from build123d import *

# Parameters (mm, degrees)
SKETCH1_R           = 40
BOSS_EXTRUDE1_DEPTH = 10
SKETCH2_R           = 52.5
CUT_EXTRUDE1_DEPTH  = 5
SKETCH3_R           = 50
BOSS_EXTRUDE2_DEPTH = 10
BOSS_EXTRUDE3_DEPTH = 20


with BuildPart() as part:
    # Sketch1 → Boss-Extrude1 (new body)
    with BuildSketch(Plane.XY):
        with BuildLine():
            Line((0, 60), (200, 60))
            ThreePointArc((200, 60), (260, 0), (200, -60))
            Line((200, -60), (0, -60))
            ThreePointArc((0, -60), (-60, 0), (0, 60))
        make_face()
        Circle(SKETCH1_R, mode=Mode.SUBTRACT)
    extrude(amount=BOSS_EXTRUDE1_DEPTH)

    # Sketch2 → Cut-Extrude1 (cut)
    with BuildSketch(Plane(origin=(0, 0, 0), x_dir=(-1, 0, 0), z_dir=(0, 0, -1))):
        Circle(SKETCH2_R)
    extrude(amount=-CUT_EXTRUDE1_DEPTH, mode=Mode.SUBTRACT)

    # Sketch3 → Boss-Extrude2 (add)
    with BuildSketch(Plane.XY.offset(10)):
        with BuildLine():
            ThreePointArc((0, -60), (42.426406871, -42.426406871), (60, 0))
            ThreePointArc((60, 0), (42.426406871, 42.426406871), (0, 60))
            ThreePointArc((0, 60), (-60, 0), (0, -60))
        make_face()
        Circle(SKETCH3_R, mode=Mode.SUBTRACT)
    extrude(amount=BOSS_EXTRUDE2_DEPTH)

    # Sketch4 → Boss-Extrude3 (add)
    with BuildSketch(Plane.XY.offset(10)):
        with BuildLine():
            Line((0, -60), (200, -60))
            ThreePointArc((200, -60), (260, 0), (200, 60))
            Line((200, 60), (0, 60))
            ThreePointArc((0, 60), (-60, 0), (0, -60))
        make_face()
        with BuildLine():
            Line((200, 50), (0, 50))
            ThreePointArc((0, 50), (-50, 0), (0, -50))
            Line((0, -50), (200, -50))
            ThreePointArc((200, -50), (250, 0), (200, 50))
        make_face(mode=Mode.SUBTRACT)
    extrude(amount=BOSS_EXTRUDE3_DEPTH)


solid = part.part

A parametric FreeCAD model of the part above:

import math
import FreeCAD as App
import Part
import Sketcher
Q = App.Units.Quantity

doc = App.newDocument("Part")
body = doc.addObject("PartDesign::Body", "Body")

# Sketch on XY plane
sketch1 = doc.addObject("Sketcher::SketchObject", "Sketch")
body.addObject(sketch1)
sketch1.AttachmentSupport = (doc.XY_Plane, [""])
sketch1.MapMode = "FlatFace"
sketch1.addGeometry(Part.LineSegment(App.Vector(200, 60, 0), App.Vector(0, 60, 0)), False)
sketch1.addGeometry(Part.ArcOfCircle(Part.Circle(App.Vector(0, 0, 0), App.Vector(0, 0, 1), 60), math.radians(90), math.radians(270)), False)
sketch1.addGeometry(Part.LineSegment(App.Vector(0, -60, 0), App.Vector(200, -60, 0)), False)
sketch1.addGeometry(Part.ArcOfCircle(Part.Circle(App.Vector(200, 0, 0), App.Vector(0, 0, 1), 60), math.radians(-90), math.radians(90)), False)
sketch1.addGeometry(Part.Circle(App.Vector(0, 0, 0), App.Vector(0, 0, 1), 40), False)
sketch1.addConstraint(Sketcher.Constraint("Tangent", 0, 2, 1, 1))
sketch1.addConstraint(Sketcher.Constraint("Tangent", 1, 2, 2, 1))
sketch1.addConstraint(Sketcher.Constraint("Tangent", 2, 2, 3, 1))
sketch1.addConstraint(Sketcher.Constraint("Tangent", 3, 2, 0, 1))
sketch1.addConstraint(Sketcher.Constraint("Horizontal", 0))
sketch1.addConstraint(Sketcher.Constraint("Horizontal", 2))
sketch1.addConstraint(Sketcher.Constraint("Coincident", 1, 3, -1, 1))
sketch1.addConstraint(Sketcher.Constraint("Coincident", 4, 3, -1, 1))
sketch1.addConstraint(Sketcher.Constraint("Diameter", 4, Q("80 mm")))
sketch1.addConstraint(Sketcher.Constraint("Radius", 1, Q("60 mm")))
sketch1.addConstraint(Sketcher.Constraint("DistanceX", 0, 2, 0, 1, Q("200 mm")))
pad1 = doc.addObject("PartDesign::Pad", "Pad")
body.addObject(pad1)
pad1.Profile = sketch1
pad1.Length = 10

# Sketch on XY plane
sketch2 = doc.addObject("Sketcher::SketchObject", "Sketch001")
body.addObject(sketch2)
sketch2.AttachmentSupport = (doc.XY_Plane, [""])
sketch2.MapMode = "FlatFace"
sketch2.addGeometry(Part.Circle(App.Vector(0, 0, 0), App.Vector(0, 0, 1), 52), False)
sketch2.addConstraint(Sketcher.Constraint("Coincident", 0, 3, -1, 1))
sketch2.addConstraint(Sketcher.Constraint("Diameter", 0, Q("105 mm")))
pocket1 = doc.addObject("PartDesign::Pocket", "Pocket")
body.addObject(pocket1)
pocket1.Profile = sketch2
pocket1.Length = 5
pocket1.Reversed = True

# Sketch on XY plane
sketch3 = doc.addObject("Sketcher::SketchObject", "Sketch002")
body.addObject(sketch3)
sketch3.AttachmentSupport = (doc.XY_Plane, [""])
sketch3.MapMode = "FlatFace"
sketch3.AttachmentOffset = App.Placement(App.Vector(0, 0, 10), App.Rotation())
sketch3.addGeometry(Part.ArcOfCircle(Part.Circle(App.Vector(0, 0, 0), App.Vector(0, 0, 1), 60), math.radians(-90), math.radians(0)), False)
sketch3.addGeometry(Part.ArcOfCircle(Part.Circle(App.Vector(0, 0, 0), App.Vector(0, 0, 1), 60), math.radians(0), math.radians(90)), False)
sketch3.addGeometry(Part.ArcOfCircle(Part.Circle(App.Vector(0, 0, 0), App.Vector(0, 0, 1), 60), math.radians(90), math.radians(270)), False)
sketch3.addGeometry(Part.Circle(App.Vector(0, 0, 0), App.Vector(0, 0, 1), 50), False)
sketch3.addConstraint(Sketcher.Constraint("Tangent", 0, 2, 1, 1))
sketch3.addConstraint(Sketcher.Constraint("Tangent", 1, 2, 2, 1))
sketch3.addConstraint(Sketcher.Constraint("Tangent", 2, 2, 0, 1))
sketch3.addConstraint(Sketcher.Constraint("Coincident", 0, 3, -1, 1))
sketch3.addConstraint(Sketcher.Constraint("Coincident", 3, 3, -1, 1))
sketch3.addConstraint(Sketcher.Constraint("PointOnObject", 0, 2, -1))
sketch3.addConstraint(Sketcher.Constraint("PointOnObject", 1, 2, -2))
sketch3.addConstraint(Sketcher.Constraint("PointOnObject", 2, 2, -2))
sketch3.addConstraint(Sketcher.Constraint("Diameter", 3, Q("100 mm")))
sketch3.addConstraint(Sketcher.Constraint("Radius", 0, Q("60 mm")))
pad2 = doc.addObject("PartDesign::Pad", "Pad001")
body.addObject(pad2)
pad2.Profile = sketch3
pad2.Length = 10

# Sketch on XY plane
sketch4 = doc.addObject("Sketcher::SketchObject", "Sketch003")
body.addObject(sketch4)
sketch4.AttachmentSupport = (doc.XY_Plane, [""])
sketch4.MapMode = "FlatFace"
sketch4.AttachmentOffset = App.Placement(App.Vector(0, 0, 10), App.Rotation())
sketch4.addGeometry(Part.LineSegment(App.Vector(0, -60, 0), App.Vector(200, -60, 0)), False)
sketch4.addGeometry(Part.ArcOfCircle(Part.Circle(App.Vector(200, 0, 0), App.Vector(0, 0, 1), 60), math.radians(-90), math.radians(90)), False)
sketch4.addGeometry(Part.LineSegment(App.Vector(200, 60, 0), App.Vector(0, 60, 0)), False)
sketch4.addGeometry(Part.ArcOfCircle(Part.Circle(App.Vector(0, 0, 0), App.Vector(0, 0, 1), 60), math.radians(90), math.radians(270)), False)
sketch4.addGeometry(Part.LineSegment(App.Vector(0, 50, 0), App.Vector(200, 50, 0)), False)
sketch4.addGeometry(Part.ArcOfCircle(Part.Circle(App.Vector(200, 0, 0), App.Vector(0, 0, 1), 50), math.radians(-90), math.radians(90)), False)
sketch4.addGeometry(Part.LineSegment(App.Vector(200, -50, 0), App.Vector(0, -50, 0)), False)
sketch4.addGeometry(Part.ArcOfCircle(Part.Circle(App.Vector(0, 0, 0), App.Vector(0, 0, 1), 50), math.radians(90), math.radians(270)), False)
sketch4.addConstraint(Sketcher.Constraint("Tangent", 0, 2, 1, 1))
sketch4.addConstraint(Sketcher.Constraint("Tangent", 1, 2, 2, 1))
sketch4.addConstraint(Sketcher.Constraint("Tangent", 2, 2, 3, 1))
sketch4.addConstraint(Sketcher.Constraint("Tangent", 3, 2, 0, 1))
sketch4.addConstraint(Sketcher.Constraint("Tangent", 4, 2, 5, 2))
sketch4.addConstraint(Sketcher.Constraint("Tangent", 5, 1, 6, 1))
sketch4.addConstraint(Sketcher.Constraint("Tangent", 6, 2, 7, 2))
sketch4.addConstraint(Sketcher.Constraint("Tangent", 7, 1, 4, 1))
sketch4.addConstraint(Sketcher.Constraint("Horizontal", 0))
sketch4.addConstraint(Sketcher.Constraint("Horizontal", 2))
sketch4.addConstraint(Sketcher.Constraint("Horizontal", 4))
sketch4.addConstraint(Sketcher.Constraint("Horizontal", 6))
sketch4.addConstraint(Sketcher.Constraint("Coincident", 3, 3, -1, 1))
sketch4.addConstraint(Sketcher.Constraint("Coincident", 7, 3, -1, 1))
sketch4.addConstraint(Sketcher.Constraint("Vertical", 5, 3, 0, 2))
sketch4.addConstraint(Sketcher.Constraint("Radius", 1, Q("60 mm")))
sketch4.addConstraint(Sketcher.Constraint("Radius", 5, Q("50 mm")))
sketch4.addConstraint(Sketcher.Constraint("DistanceX", 0, 1, 0, 2, Q("200 mm")))
pad3 = doc.addObject("PartDesign::Pad", "Pad002")
body.addObject(pad3)
pad3.Profile = sketch4
pad3.Length = 20

doc.recompute()
